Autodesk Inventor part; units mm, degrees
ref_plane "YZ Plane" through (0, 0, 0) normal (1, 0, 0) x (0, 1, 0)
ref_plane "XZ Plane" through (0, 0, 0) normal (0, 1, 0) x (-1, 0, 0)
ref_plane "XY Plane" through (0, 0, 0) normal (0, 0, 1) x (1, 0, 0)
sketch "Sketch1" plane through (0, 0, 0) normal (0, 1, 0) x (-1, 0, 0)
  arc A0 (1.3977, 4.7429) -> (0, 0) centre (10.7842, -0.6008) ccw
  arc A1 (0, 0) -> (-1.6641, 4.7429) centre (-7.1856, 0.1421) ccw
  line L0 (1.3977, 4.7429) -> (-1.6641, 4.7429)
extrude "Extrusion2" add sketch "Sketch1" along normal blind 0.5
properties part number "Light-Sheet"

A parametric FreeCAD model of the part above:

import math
import FreeCAD as App
import Part
import Sketcher

V = App.Vector

doc = App.newDocument("Part")
body = doc.addObject("PartDesign::Body", "Body")

sketch1 = body.newObject("Sketcher::SketchObject", "Sketch")
sketch1.AttachmentSupport = (doc.getObject("XZ_Plane"), [""])
sketch1.MapMode = "FlatFace"
sketch1.addGeometry(Part.ArcOfCircle(Part.Circle(V(-10.782923, -0.600257, 0), V(0, 0, 1), 10.799617), math.radians(3.186216), math.radians(29.653549)), False)
sketch1.addGeometry(Part.LineSegment(V(-1.3977, 4.7429, 0), V(1.6641, 4.7429, 0)), False)
sketch1.addGeometry(Part.ArcOfCircle(Part.Circle(V(7.1856, 0.1421, 0), V(0, 0, 1), 7.187005), math.radians(140.197185), math.radians(181.132914)), False)
sketch1.addConstraint(Sketcher.Constraint("Coincident", 0, 2, 1, 1))
sketch1.addConstraint(Sketcher.Constraint("Coincident", 1, 2, 2, 1))
sketch1.addConstraint(Sketcher.Constraint("Coincident", 2, 2, 0, 1))
sketch1.addConstraint(Sketcher.Constraint("Horizontal", 1))
sketch1.addConstraint(Sketcher.Constraint("Coincident", 2, 2, -1, 1))
sketch1.addConstraint(Sketcher.Constraint("Radius", 2, 7.187))
sketch1.addConstraint(Sketcher.Constraint("Radius", 0, 10.7996))
sketch1.addConstraint(Sketcher.Constraint("DistanceX", 1, 1, 1, 2, 3.0618))
sketch1.addConstraint(Sketcher.Constraint("DistanceX", 0, 3, -1, 1, 10.783))
sketch1.addConstraint(Sketcher.Constraint("DistanceY", -1, 1, 2, 3, 0.142))
pad1 = body.newObject("PartDesign::Pad", "Pad")
pad1.Profile = sketch1
pad1.Length = 0.5
pad1.Reversed = True

doc.recompute()
